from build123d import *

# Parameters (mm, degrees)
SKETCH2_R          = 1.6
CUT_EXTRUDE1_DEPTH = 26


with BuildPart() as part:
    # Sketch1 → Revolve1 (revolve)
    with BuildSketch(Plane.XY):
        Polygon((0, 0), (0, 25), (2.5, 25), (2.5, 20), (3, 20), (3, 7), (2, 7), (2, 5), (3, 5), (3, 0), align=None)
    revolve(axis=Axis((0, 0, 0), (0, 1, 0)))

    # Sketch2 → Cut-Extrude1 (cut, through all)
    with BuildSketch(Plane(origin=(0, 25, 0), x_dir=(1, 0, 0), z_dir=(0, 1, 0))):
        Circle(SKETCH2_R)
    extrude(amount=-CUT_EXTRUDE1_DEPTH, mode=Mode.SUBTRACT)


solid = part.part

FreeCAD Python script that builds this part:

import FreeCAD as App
import Part
import Sketcher

V = App.Vector


def add_polygon(sketch, points):
    """Adds a closed chain of lines whose ends are joined by coincident constraints."""
    first, n = sketch.GeometryCount, len(points)
    for a, b in zip(points, points[1:] + points[:1]):
        sketch.addGeometry(Part.LineSegment(App.Vector(*a, 0), App.Vector(*b, 0)), False)
    for i in range(n):
        sketch.addConstraint(Sketcher.Constraint("Coincident", first + i, 2, first + (i + 1) % n, 1))

doc = App.newDocument("Part")
body = doc.addObject("PartDesign::Body", "Body")

sketch1 = body.newObject("Sketcher::SketchObject", "Sketch")
sketch1.AttachmentSupport = (doc.getObject("XY_Plane"), [""])
sketch1.MapMode = "FlatFace"
add_polygon(sketch1, [(0, 25), (0, 0), (3, 0), (3, 5), (2, 5), (2, 7), (3, 7), (3, 20), (2.5, 20), (2.5, 25)])
sketch1.addConstraint(Sketcher.Constraint("Vertical", 0))
sketch1.addConstraint(Sketcher.Constraint("Horizontal", 1))
sketch1.addConstraint(Sketcher.Constraint("Vertical", 2))
sketch1.addConstraint(Sketcher.Constraint("Horizontal", 3))
sketch1.addConstraint(Sketcher.Constraint("Vertical", 4))
sketch1.addConstraint(Sketcher.Constraint("Horizontal", 5))
sketch1.addConstraint(Sketcher.Constraint("Vertical", 6))
sketch1.addConstraint(Sketcher.Constraint("Horizontal", 7))
sketch1.addConstraint(Sketcher.Constraint("Vertical", 8))
sketch1.addConstraint(Sketcher.Constraint("Horizontal", 9))
sketch1.addConstraint(Sketcher.Constraint("Coincident", 0, 2, -1, 1))
sketch1.addConstraint(Sketcher.Constraint("Vertical", 2, 2, 5, 2))
sketch1.addConstraint(Sketcher.Constraint("Equal", 2, 8))
sketch1.addConstraint(Sketcher.Constraint("DistanceX", 1, 1, 1, 2, 3.0))
sketch1.addConstraint(Sketcher.Constraint("DistanceX", 3, 2, 3, 1, 1.0))
sketch1.addConstraint(Sketcher.Constraint("DistanceY", 0, 2, 0, 1, 25.0))
sketch1.addConstraint(Sketcher.Constraint("DistanceY", 2, 1, 2, 2, 5.0))
sketch1.addConstraint(Sketcher.Constraint("DistanceY", 4, 1, 4, 2, 2.0))
sketch1.addConstraint(Sketcher.Constraint("DistanceX", 7, 2, 7, 1, 0.5))
revolution = body.newObject("PartDesign::Revolution", "Revolution")
revolution.Profile = sketch1
revolution.ReferenceAxis = (sketch1, ["V_Axis"])
revolution.Angle = 360

sketch2 = body.newObject("Sketcher::SketchObject", "Sketch001")
sketch2.AttachmentSupport = (doc.getObject("XZ_Plane"), [""])
sketch2.MapMode = "FlatFace"
sketch2.AttachmentOffset = App.Placement(V(0, 0, -25), App.Rotation())
sketch2.addGeometry(Part.Circle(V(0, 0, 0), V(0, 0, 1), 1.6), False)
sketch2.addConstraint(Sketcher.Constraint("Coincident", 0, 3, -1, 1))
sketch2.addConstraint(Sketcher.Constraint("Diameter", 0, 3.2))
pocket1 = body.newObject("PartDesign::Pocket", "Pocket")
pocket1.Profile = sketch2
pocket1.Type = "ThroughAll"
pocket1.Reversed = True

doc.recompute()
